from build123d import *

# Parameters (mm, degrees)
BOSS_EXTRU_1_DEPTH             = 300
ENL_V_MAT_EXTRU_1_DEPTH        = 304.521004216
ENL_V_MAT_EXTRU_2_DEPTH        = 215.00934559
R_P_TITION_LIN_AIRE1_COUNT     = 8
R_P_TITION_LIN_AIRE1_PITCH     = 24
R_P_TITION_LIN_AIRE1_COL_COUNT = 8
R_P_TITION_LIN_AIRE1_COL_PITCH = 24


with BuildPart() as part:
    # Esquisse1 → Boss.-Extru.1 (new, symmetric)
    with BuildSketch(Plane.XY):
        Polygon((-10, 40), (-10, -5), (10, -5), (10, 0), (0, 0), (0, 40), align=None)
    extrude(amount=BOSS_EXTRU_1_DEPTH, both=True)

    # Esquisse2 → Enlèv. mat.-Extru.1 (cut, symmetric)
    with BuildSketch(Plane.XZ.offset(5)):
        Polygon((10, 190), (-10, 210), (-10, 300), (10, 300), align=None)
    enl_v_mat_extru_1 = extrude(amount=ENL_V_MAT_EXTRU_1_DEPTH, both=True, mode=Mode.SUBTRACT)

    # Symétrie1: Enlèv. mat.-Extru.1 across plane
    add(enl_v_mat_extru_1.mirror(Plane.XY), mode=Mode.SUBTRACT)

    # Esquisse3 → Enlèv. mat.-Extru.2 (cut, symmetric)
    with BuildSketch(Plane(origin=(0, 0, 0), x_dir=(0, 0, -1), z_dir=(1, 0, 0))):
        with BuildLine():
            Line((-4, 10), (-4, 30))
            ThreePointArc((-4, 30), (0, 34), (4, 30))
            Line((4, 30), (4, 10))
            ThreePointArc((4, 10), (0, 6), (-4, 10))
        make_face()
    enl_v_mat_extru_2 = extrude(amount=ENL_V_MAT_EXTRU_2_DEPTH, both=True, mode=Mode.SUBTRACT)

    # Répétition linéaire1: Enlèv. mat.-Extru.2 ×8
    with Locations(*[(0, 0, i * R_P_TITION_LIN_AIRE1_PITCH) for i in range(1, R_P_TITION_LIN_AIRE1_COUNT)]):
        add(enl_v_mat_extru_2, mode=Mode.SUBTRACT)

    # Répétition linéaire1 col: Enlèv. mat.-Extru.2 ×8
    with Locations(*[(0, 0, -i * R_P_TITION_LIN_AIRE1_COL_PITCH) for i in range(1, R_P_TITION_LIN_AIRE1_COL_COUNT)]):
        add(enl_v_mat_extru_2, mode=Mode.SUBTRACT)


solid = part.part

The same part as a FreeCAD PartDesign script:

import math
import FreeCAD as App
import Part
import Sketcher
from FreeCAD import Vector
Q = App.Units.Quantity

doc = App.newDocument("Part")
params = doc.addObject("Spreadsheet::Sheet", "Params")
for row, (alias, value) in enumerate([
    ("sketch1_width", "20 mm"),
    ("sketch1_height", "45 mm"),
    ("sketch1_height2", "5 mm"),
    ("pad1_length", "600 mm"),
    ("sketch2_width", "20 mm"),
    ("sketch2_height", "110 mm"),
    ("sketch2_height2", "90 mm"),
    ("pocket1_length", "609.042008 mm"),
    ("sketch3_radius", "4 mm"),
    ("sketch3_width", "20 mm"),
    ("pocket2_length", "430.018691 mm"),
    ("linearpattern_pitch", "24 mm"),
    ("linearpattern2_pitch", "24 mm"),
], start=1):
    params.set(f"A{row}", alias)
    params.set(f"B{row}", "=" + value)
    params.setAlias(f"B{row}", alias)

body = doc.addObject("PartDesign::Body", "Body")

# Sketch on XY plane
sketch1 = doc.addObject("Sketcher::SketchObject", "Sketch")
body.addObject(sketch1)
sketch1.AttachmentSupport = (doc.XY_Plane, [""])
sketch1.MapMode = "FlatFace"
sketch1.addGeometry([
    Part.LineSegment(Vector(-10, 40, 0), Vector(-10, -5, 0)),  # 0
    Part.LineSegment(Vector(-10, -5, 0), Vector(10, -5, 0)),  # 1
    Part.LineSegment(Vector(10, -5, 0), Vector(10, 0, 0)),  # 2
    Part.LineSegment(Vector(10, 0, 0), Vector(0, 0, 0)),  # 3
    Part.LineSegment(Vector(0, 0, 0), Vector(0, 40, 0)),  # 4
    Part.LineSegment(Vector(0, 40, 0), Vector(-10, 40, 0)),  # 5
], False)
sketch1.addConstraint([
    Sketcher.Constraint("Coincident", 0, 2, 1, 1),
    Sketcher.Constraint("Coincident", 1, 2, 2, 1),
    Sketcher.Constraint("Coincident", 2, 2, 3, 1),
    Sketcher.Constraint("Coincident", 3, 2, 4, 1),
    Sketcher.Constraint("Coincident", 4, 2, 5, 1),
    Sketcher.Constraint("Coincident", 5, 2, 0, 1),
    Sketcher.Constraint("Vertical", 0),
    Sketcher.Constraint("Horizontal", 1),
    Sketcher.Constraint("Vertical", 2),
    Sketcher.Constraint("Horizontal", 3),
    Sketcher.Constraint("Vertical", 4),
    Sketcher.Constraint("Horizontal", 5),
    Sketcher.Constraint("Coincident", 3, 2, -1, 1),
    Sketcher.Constraint("Equal", 3, 5),
    Sketcher.Constraint("DistanceX", 1, 1, 1, 2, Q("20 mm")),
    Sketcher.Constraint("DistanceY", 0, 2, 0, 1, Q("45 mm")),
    Sketcher.Constraint("DistanceY", 2, 1, 2, 2, Q("5 mm")),
])
sketch1.setExpression("Constraints[14]", "Params.sketch1_width")
sketch1.setExpression("Constraints[15]", "Params.sketch1_height")
sketch1.setExpression("Constraints[16]", "Params.sketch1_height2")
pad1 = doc.addObject("PartDesign::Pad", "Pad")
body.addObject(pad1)
pad1.Profile = sketch1
pad1.setExpression("Length", "Params.pad1_length")
pad1.Midplane = True

# Sketch on XZ plane
sketch2 = doc.addObject("Sketcher::SketchObject", "Sketch001")
body.addObject(sketch2)
sketch2.AttachmentSupport = (doc.XZ_Plane, [""])
sketch2.MapMode = "FlatFace"
sketch2.AttachmentOffset = App.Placement(Vector(0, 0, 5), App.Rotation())
sketch2.addGeometry([
    Part.LineSegment(Vector(-10, 210, 0), Vector(10, 190, 0)),
    Part.LineSegment(Vector(10, 190, 0), Vector(10, 300, 0)),
    Part.LineSegment(Vector(10, 300, 0), Vector(-10, 300, 0)),
    Part.LineSegment(Vector(-10, 300, 0), Vector(-10, 210, 0)),
], False)
sketch2.addConstraint([
    Sketcher.Constraint("Coincident", 0, 2, 1, 1),
    Sketcher.Constraint("Coincident", 1, 2, 2, 1),
    Sketcher.Constraint("Coincident", 2, 2, 3, 1),
    Sketcher.Constraint("Coincident", 3, 2, 0, 1),
    Sketcher.Constraint("Vertical", 1),
    Sketcher.Constraint("Horizontal", 2),
    Sketcher.Constraint("Vertical", 3),
    Sketcher.Constraint("DistanceX", 2, 2, 2, 1, Q("20 mm")),
    Sketcher.Constraint("DistanceY", 1, 1, 1, 2, Q("110 mm")),
    Sketcher.Constraint("DistanceY", 3, 2, 3, 1, Q("90 mm")),
    Sketcher.Constraint("DistanceX", -1, 1, 0, 2, Q("10 mm")),
    Sketcher.Constraint("DistanceY", -1, 1, 0, 2, Q("190 mm")),
])
sketch2.setExpression("Constraints[7]", "Params.sketch2_width")
sketch2.setExpression("Constraints[8]", "Params.sketch2_height")
sketch2.setExpression("Constraints[9]", "Params.sketch2_height2")
pocket1 = doc.addObject("PartDesign::Pocket", "Pocket")
body.addObject(pocket1)
pocket1.Profile = sketch2
pocket1.setExpression("Length", "Params.pocket1_length")
pocket1.Midplane = True
doc.recompute()

mirrored = doc.addObject("PartDesign::Mirrored", "Mirrored")
body.addObject(mirrored)
mirrored.Originals = [pocket1]
mirrored.MirrorPlane = (doc.XY_Plane, [""])
body.Tip = mirrored

# Sketch on YZ plane
sketch3 = doc.addObject("Sketcher::SketchObject", "Sketch002")
body.addObject(sketch3)
sketch3.AttachmentSupport = (doc.YZ_Plane, [""])
sketch3.MapMode = "FlatFace"
sketch3.addGeometry([
    Part.LineSegment(Vector(30, 4, 0), Vector(10, 4, 0)),
    Part.ArcOfCircle(Part.Circle(Vector(10, 0, 0), Vector(0, 0, 1), 4), math.radians(90), math.radians(270)),
    Part.LineSegment(Vector(10, -4, 0), Vector(30, -4, 0)),
    Part.ArcOfCircle(Part.Circle(Vector(30, 0, 0), Vector(0, 0, 1), 4), math.radians(-90), math.radians(90)),
], False)
sketch3.addConstraint([
    Sketcher.Constraint("Tangent", 0, 2, 1, 1),
    Sketcher.Constraint("Tangent", 1, 2, 2, 1),
    Sketcher.Constraint("Tangent", 2, 2, 3, 1),
    Sketcher.Constraint("Tangent", 3, 2, 0, 1),
    Sketcher.Constraint("Horizontal", 0),
    Sketcher.Constraint("Horizontal", 2),
    Sketcher.Constraint("PointOnObject", 1, 3, -1),
    Sketcher.Constraint("Radius", 1, Q("4 mm")),
    Sketcher.Constraint("DistanceX", 0, 2, 0, 1, Q("20 mm")),
    Sketcher.Constraint("DistanceX", -1, 1, 1, 3, Q("10 mm")),
])
sketch3.setExpression("Constraints[7]", "Params.sketch3_radius")
sketch3.setExpression("Constraints[8]", "Params.sketch3_width")
pocket2 = doc.addObject("PartDesign::Pocket", "Pocket001")
body.addObject(pocket2)
pocket2.Profile = sketch3
pocket2.setExpression("Length", "Params.pocket2_length")
pocket2.Midplane = True
doc.recompute()

linearpattern = doc.addObject("PartDesign::LinearPattern", "LinearPattern")
body.addObject(linearpattern)
linearpattern.Originals = [pocket2]
linearpattern.Direction = (doc.Z_Axis, [""])
linearpattern.Mode = "offset"
linearpattern.setExpression("Offset", "Params.linearpattern_pitch")
linearpattern.Occurrences = 8
body.Tip = linearpattern
doc.recompute()

linearpattern2 = doc.addObject("PartDesign::LinearPattern", "LinearPattern001")
body.addObject(linearpattern2)
linearpattern2.Originals = [pocket2]
linearpattern2.Direction = (doc.Z_Axis, [""])
linearpattern2.Mode = "offset"
linearpattern2.setExpression("Offset", "Params.linearpattern2_pitch")
linearpattern2.Occurrences = 8
linearpattern2.Reversed = True
body.Tip = linearpattern2

doc.recompute()
